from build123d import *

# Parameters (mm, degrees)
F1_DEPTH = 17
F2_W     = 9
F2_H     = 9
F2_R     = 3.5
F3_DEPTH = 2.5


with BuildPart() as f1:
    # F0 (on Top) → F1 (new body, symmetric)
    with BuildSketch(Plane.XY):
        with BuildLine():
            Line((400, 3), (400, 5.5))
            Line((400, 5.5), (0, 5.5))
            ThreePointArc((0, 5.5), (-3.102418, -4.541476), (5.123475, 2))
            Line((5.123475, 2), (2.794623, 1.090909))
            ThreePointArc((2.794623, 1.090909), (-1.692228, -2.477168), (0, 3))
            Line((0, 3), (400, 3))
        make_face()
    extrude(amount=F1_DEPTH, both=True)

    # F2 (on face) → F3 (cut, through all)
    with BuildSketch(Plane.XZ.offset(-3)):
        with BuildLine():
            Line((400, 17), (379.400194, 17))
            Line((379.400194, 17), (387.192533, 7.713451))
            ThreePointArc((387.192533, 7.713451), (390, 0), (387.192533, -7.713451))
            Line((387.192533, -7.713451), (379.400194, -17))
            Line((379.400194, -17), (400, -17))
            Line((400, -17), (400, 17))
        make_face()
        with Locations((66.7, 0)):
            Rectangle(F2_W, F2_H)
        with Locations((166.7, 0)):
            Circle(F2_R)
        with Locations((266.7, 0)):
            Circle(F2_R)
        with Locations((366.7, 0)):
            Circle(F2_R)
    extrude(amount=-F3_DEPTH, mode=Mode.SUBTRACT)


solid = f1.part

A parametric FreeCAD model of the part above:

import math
import FreeCAD as App
import Part
import Sketcher
Q = App.Units.Quantity

doc = App.newDocument("Part")
body = doc.addObject("PartDesign::Body", "Body")

# Sketch on XY plane
sketch1 = body.newObject("Sketcher::SketchObject", "Sketch")
sketch1.AttachmentSupport = (doc.getObject("XY_Plane"), [""])
sketch1.MapMode = "FlatFace"
sketch1.addGeometry([
    Part.LineSegment(App.Vector(400, 3, 0), App.Vector(400, 5.5, 0)),  # 0
    Part.LineSegment(App.Vector(400, 5.5, 0), App.Vector(0, 5.5, 0)),  # 1
    Part.ArcOfCircle(Part.Circle(App.Vector(0, 0, 0), App.Vector(0, 0, 1), 5.5), math.radians(90), math.radians(381)),  # 2
    Part.LineSegment(App.Vector(5.1, 2, 0), App.Vector(2.8, 1.1, 0)),  # 3
    Part.ArcOfCircle(Part.Circle(App.Vector(0, 0, 0), App.Vector(0, 0, 1), 3), math.radians(90), math.radians(381)),  # 4
    Part.LineSegment(App.Vector(0, 3, 0), App.Vector(400, 3, 0)),  # 5
], False)
sketch1.addConstraint([
    Sketcher.Constraint("Coincident", 0, 2, 1, 1),
    Sketcher.Constraint("Tangent", 1, 2, 2, 1),
    Sketcher.Constraint("Coincident", 2, 2, 3, 1),
    Sketcher.Constraint("Coincident", 3, 2, 4, 2),
    Sketcher.Constraint("Tangent", 4, 1, 5, 1),
    Sketcher.Constraint("Coincident", 5, 2, 0, 1),
    Sketcher.Constraint("Vertical", 0),
    Sketcher.Constraint("Horizontal", 1),
    Sketcher.Constraint("Horizontal", 5),
    Sketcher.Constraint("Coincident", 2, 3, -1, 1),
    Sketcher.Constraint("Coincident", 4, 3, -1, 1),
    Sketcher.Constraint("Radius", 4, Q("3 mm")),
    Sketcher.Constraint("Radius", 2, Q("5.5 mm")),
    Sketcher.Constraint("DistanceX", 1, 2, 1, 1, Q("400 mm")),
    Sketcher.Constraint("DistanceY", -1, 1, 2, 2, Q("2 mm")),
    Sketcher.Constraint("DistanceY", -1, 1, 3, 2, Q("1.090909 mm")),
])
pad1 = body.newObject("PartDesign::Pad", "Pad")
pad1.Profile = sketch1
pad1.Length = 34
pad1.Midplane = True

# Sketch on XZ plane
sketch2 = body.newObject("Sketcher::SketchObject", "Sketch001")
sketch2.AttachmentSupport = (doc.getObject("XZ_Plane"), [""])
sketch2.MapMode = "FlatFace"
sketch2.AttachmentOffset = App.Placement(App.Vector(0, 0, -3), App.Rotation())
sketch2.addGeometry([
    Part.LineSegment(App.Vector(400, 17, 0), App.Vector(379.4, 17, 0)),  # 0
    Part.LineSegment(App.Vector(379.4, 17, 0), App.Vector(387.2, 7.7, 0)),  # 1
    Part.ArcOfCircle(Part.Circle(App.Vector(378, 0, 0), App.Vector(0, 0, 1), 12), math.radians(-40), math.radians(40)),  # 2
    Part.LineSegment(App.Vector(387.2, -7.7, 0), App.Vector(379.4, -17, 0)),  # 3
    Part.LineSegment(App.Vector(379.4, -17, 0), App.Vector(400, -17, 0)),  # 4
    Part.LineSegment(App.Vector(400, -17, 0), App.Vector(400, 17, 0)),  # 5
    Part.LineSegment(App.Vector(62.2, 4.5, 0), App.Vector(62.2, -4.5, 0)),  # 6
    Part.LineSegment(App.Vector(62.2, -4.5, 0), App.Vector(71.2, -4.5, 0)),  # 7
    Part.LineSegment(App.Vector(71.2, -4.5, 0), App.Vector(71.2, 4.5, 0)),  # 8
    Part.LineSegment(App.Vector(71.2, 4.5, 0), App.Vector(62.2, 4.5, 0)),  # 9
    Part.Circle(App.Vector(166.7, 0, 0), App.Vector(0, 0, 1), 3.5),  # 10
    Part.Circle(App.Vector(266.7, 0, 0), App.Vector(0, 0, 1), 3.5),  # 11
    Part.Circle(App.Vector(366.7, 0, 0), App.Vector(0, 0, 1), 3.5),  # 12
], False)
sketch2.addConstraint([
    Sketcher.Constraint("Coincident", 0, 2, 1, 1),
    Sketcher.Constraint("Tangent", 1, 2, 2, 2),
    Sketcher.Constraint("Tangent", 2, 1, 3, 1),
    Sketcher.Constraint("Coincident", 3, 2, 4, 1),
    Sketcher.Constraint("Coincident", 4, 2, 5, 1),
    Sketcher.Constraint("Coincident", 5, 2, 0, 1),
    Sketcher.Constraint("Coincident", 6, 2, 7, 1),
    Sketcher.Constraint("Coincident", 7, 2, 8, 1),
    Sketcher.Constraint("Coincident", 8, 2, 9, 1),
    Sketcher.Constraint("Coincident", 9, 2, 6, 1),
    Sketcher.Constraint("Horizontal", 0),
    Sketcher.Constraint("Horizontal", 4),
    Sketcher.Constraint("Vertical", 5),
    Sketcher.Constraint("Vertical", 6),
    Sketcher.Constraint("Horizontal", 7),
    Sketcher.Constraint("Vertical", 8),
    Sketcher.Constraint("Horizontal", 9),
    Sketcher.Constraint("Equal", 10, 11),
    Sketcher.Constraint("Equal", 11, 12),
    Sketcher.Constraint("Symmetric", 1, 2, 2, 1, -1),
    Sketcher.Constraint("PointOnObject", 10, 3, -1),
    Sketcher.Constraint("PointOnObject", 11, 3, -1),
    Sketcher.Constraint("PointOnObject", 12, 3, -1),
    Sketcher.Constraint("Vertical", 0, 2, 3, 2),
    Sketcher.Constraint("Equal", 9, 6),
    Sketcher.Constraint("Diameter", 10, Q("7 mm")),
    Sketcher.Constraint("Radius", 2, Q("11.999998 mm")),
    Sketcher.Constraint("DistanceX", 7, 1, 7, 2, Q("9 mm")),
    Sketcher.Constraint("DistanceY", 5, 1, 5, 2, Q("34 mm")),
    Sketcher.Constraint("Angle", 1, Q("-50.000003 deg")),
    Sketcher.Constraint("DistanceX", -1, 1, 2, 3, Q("378.000002 mm")),
    Sketcher.Constraint("DistanceX", -1, 1, 4, 2, Q("400 mm")),
    Sketcher.Constraint("DistanceX", 10, 3, 11, 3, Q("100 mm")),
    Sketcher.Constraint("DistanceX", 11, 3, 12, 3, Q("100 mm")),
    Sketcher.Constraint("DistanceX", -1, 1, 10, 3, Q("166.7 mm")),
    Sketcher.Constraint("DistanceX", -1, 1, 6, 2, Q("62.2 mm")),
    Sketcher.Constraint("DistanceY", 6, 2, -1, 1, Q("4.5 mm")),
])
pocket1 = body.newObject("PartDesign::Pocket", "Pocket")
pocket1.Profile = sketch2
pocket1.Type = "ThroughAll"

doc.recompute()
